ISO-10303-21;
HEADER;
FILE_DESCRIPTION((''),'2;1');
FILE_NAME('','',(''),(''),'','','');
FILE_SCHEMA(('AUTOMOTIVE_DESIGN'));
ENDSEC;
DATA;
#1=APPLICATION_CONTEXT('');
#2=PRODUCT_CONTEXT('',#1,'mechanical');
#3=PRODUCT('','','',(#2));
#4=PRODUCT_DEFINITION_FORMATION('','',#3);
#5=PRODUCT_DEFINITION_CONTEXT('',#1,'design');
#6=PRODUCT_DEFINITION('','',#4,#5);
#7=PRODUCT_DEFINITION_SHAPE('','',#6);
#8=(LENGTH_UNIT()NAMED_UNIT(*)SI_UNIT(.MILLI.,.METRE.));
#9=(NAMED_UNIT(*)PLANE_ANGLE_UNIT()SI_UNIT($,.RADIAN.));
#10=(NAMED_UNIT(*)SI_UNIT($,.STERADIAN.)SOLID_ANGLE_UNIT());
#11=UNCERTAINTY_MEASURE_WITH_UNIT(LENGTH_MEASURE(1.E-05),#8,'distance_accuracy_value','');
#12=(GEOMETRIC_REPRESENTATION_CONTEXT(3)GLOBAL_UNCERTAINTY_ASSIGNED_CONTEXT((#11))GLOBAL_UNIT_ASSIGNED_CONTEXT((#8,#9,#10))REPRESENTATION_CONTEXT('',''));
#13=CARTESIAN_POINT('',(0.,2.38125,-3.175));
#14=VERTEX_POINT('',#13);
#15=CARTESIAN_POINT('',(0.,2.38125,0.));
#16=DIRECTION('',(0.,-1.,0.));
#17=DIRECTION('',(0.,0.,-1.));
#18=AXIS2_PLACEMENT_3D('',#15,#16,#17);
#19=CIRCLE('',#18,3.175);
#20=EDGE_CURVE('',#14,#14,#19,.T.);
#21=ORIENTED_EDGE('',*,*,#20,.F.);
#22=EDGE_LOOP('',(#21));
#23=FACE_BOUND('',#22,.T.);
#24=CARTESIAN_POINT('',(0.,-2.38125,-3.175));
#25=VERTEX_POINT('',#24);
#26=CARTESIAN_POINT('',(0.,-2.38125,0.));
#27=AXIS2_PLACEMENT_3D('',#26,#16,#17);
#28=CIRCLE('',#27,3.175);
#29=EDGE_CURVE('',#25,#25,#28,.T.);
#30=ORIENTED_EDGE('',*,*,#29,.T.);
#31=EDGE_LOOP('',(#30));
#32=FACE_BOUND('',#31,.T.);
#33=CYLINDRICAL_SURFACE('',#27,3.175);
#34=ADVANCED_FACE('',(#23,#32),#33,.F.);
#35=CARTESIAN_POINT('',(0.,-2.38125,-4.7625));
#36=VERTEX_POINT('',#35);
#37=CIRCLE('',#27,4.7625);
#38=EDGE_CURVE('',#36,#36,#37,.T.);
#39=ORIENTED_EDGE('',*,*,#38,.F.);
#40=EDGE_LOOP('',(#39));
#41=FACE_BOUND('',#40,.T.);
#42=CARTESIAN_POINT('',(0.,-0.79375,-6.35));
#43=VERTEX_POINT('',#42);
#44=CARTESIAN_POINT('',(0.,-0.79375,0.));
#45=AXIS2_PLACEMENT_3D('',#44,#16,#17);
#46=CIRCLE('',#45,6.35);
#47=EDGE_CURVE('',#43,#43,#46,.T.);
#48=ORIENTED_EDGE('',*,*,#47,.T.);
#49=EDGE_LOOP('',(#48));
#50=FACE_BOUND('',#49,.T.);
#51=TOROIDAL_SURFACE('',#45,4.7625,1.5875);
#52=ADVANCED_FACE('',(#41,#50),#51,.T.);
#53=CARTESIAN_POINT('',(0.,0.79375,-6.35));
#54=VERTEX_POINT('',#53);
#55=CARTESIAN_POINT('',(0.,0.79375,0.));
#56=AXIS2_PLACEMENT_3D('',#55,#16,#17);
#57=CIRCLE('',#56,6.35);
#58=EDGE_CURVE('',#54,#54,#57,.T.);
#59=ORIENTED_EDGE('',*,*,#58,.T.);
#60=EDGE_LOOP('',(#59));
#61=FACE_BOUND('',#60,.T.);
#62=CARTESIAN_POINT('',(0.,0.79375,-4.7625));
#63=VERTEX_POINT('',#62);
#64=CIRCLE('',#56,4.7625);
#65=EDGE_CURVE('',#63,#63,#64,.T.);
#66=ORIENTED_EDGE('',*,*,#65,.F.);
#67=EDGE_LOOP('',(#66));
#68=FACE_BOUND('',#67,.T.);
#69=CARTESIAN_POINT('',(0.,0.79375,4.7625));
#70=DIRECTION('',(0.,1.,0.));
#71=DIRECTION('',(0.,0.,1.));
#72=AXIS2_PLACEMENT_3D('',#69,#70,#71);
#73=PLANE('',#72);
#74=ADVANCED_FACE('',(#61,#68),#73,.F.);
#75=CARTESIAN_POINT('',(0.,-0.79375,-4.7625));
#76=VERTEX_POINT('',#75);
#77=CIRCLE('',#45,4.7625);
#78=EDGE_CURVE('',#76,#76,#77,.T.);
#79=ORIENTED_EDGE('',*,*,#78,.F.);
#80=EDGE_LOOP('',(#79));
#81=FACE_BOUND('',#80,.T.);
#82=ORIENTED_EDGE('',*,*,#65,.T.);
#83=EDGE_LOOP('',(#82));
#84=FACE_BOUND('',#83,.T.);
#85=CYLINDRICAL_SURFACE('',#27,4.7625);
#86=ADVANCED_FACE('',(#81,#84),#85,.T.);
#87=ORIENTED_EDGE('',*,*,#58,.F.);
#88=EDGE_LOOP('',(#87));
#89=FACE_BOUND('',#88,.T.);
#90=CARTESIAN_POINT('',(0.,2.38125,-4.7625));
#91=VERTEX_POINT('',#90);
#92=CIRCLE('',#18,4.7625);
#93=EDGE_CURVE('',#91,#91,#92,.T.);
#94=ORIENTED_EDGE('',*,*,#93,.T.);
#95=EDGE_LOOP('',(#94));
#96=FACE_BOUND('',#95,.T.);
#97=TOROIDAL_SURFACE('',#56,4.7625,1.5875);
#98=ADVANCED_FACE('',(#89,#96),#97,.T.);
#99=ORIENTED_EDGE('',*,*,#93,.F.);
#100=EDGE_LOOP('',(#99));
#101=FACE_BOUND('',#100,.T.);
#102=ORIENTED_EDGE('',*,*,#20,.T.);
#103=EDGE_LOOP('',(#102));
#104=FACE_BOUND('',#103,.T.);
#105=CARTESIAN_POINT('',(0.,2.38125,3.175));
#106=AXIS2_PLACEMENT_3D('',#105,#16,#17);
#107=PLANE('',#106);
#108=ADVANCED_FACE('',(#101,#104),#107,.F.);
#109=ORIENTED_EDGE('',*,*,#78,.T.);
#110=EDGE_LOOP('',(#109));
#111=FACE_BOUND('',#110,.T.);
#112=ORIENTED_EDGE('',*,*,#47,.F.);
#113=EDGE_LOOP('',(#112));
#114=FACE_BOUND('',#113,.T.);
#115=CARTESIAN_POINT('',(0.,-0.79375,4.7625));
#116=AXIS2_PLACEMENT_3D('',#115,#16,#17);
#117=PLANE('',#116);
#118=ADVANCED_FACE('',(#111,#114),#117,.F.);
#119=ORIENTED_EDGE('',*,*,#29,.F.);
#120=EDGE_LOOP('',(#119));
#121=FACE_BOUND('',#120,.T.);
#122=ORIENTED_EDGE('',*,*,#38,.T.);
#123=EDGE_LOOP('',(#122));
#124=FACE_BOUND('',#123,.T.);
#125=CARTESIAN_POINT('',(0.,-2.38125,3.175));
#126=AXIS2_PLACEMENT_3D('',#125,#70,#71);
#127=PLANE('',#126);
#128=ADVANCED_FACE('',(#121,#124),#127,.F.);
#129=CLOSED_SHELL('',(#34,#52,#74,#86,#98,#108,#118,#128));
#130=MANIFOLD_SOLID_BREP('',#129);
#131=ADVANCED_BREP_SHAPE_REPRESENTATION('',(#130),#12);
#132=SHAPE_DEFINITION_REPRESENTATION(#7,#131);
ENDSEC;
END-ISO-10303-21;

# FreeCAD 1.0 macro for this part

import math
import FreeCAD as App
import Part
import Sketcher
Q = App.Units.Quantity

doc = App.newDocument("Part")
body = doc.addObject("PartDesign::Body", "Body")

sketch1 = doc.addObject("Sketcher::SketchObject", "Sketch")
body.addObject(sketch1)
sketch1.AttachmentSupport = (doc.YZ_Plane, [""])
sketch1.MapMode = "FlatFace"
sketch1.addGeometry(Part.LineSegment(App.Vector(-2.38125, 3.175, 0), App.Vector(2.38125, 3.175, 0)), False)
sketch1.addGeometry(Part.LineSegment(App.Vector(2.38125, 3.175, 0), App.Vector(2.38125, 4.7625, 0)), False)
sketch1.addGeometry(Part.ArcOfCircle(Part.Circle(App.Vector(0.79375, 4.7625, 0), App.Vector(0, 0, 1), 1.5875), math.radians(0), math.radians(90)), False)
sketch1.addGeometry(Part.LineSegment(App.Vector(0.79375, 6.35, 0), App.Vector(0.79375, 4.7625, 0)), False)
sketch1.addGeometry(Part.LineSegment(App.Vector(0.79375, 4.7625, 0), App.Vector(-0.79375, 4.7625, 0)), False)
sketch1.addGeometry(Part.LineSegment(App.Vector(-0.79375, 4.7625, 0), App.Vector(-0.79375, 6.35, 0)), False)
sketch1.addGeometry(Part.ArcOfCircle(Part.Circle(App.Vector(-0.79375, 4.7625, 0), App.Vector(0, 0, 1), 1.5875), math.radians(90), math.radians(180)), False)
sketch1.addGeometry(Part.LineSegment(App.Vector(-2.38125, 4.7625, 0), App.Vector(-2.38125, 3.175, 0)), False)
sketch1.addConstraint(Sketcher.Constraint("Coincident", 0, 2, 1, 1))
sketch1.addConstraint(Sketcher.Constraint("Tangent", 1, 2, 2, 1))
sketch1.addConstraint(Sketcher.Constraint("Coincident", 2, 2, 3, 1))
sketch1.addConstraint(Sketcher.Constraint("Coincident", 3, 2, 4, 1))
sketch1.addConstraint(Sketcher.Constraint("Coincident", 4, 2, 5, 1))
sketch1.addConstraint(Sketcher.Constraint("Coincident", 5, 2, 6, 1))
sketch1.addConstraint(Sketcher.Constraint("Tangent", 6, 2, 7, 1))
sketch1.addConstraint(Sketcher.Constraint("Coincident", 7, 2, 0, 1))
sketch1.addConstraint(Sketcher.Constraint("Horizontal", 0))
sketch1.addConstraint(Sketcher.Constraint("Vertical", 1))
sketch1.addConstraint(Sketcher.Constraint("Vertical", 3))
sketch1.addConstraint(Sketcher.Constraint("Horizontal", 4))
sketch1.addConstraint(Sketcher.Constraint("Vertical", 5))
sketch1.addConstraint(Sketcher.Constraint("Vertical", 7))
sketch1.addConstraint(Sketcher.Constraint("Coincident", 3, 2, 2, 3))
sketch1.addConstraint(Sketcher.Constraint("Coincident", 4, 2, 6, 3))
sketch1.addConstraint(Sketcher.Constraint("Equal", 2, 6))
sketch1.addConstraint(Sketcher.Constraint("Equal", 4, 1))
sketch1.addConstraint(Sketcher.Constraint("Equal", 1, 3))
sketch1.addConstraint(Sketcher.Constraint("Radius", 2, Q("0.0625 in")))
sketch1.addConstraint(Sketcher.Constraint("DistanceY", -1, 1, 2, 2, Q("0.25 in")))
sketch1.addConstraint(Sketcher.Constraint("DistanceX", -1, 1, 2, 3, Q("0.03125 in")))
revolution = doc.addObject("PartDesign::Revolution", "Revolution")
body.addObject(revolution)
revolution.Profile = sketch1
revolution.ReferenceAxis = (sketch1, ["H_Axis"])
revolution.Angle = 360

doc.recompute()
